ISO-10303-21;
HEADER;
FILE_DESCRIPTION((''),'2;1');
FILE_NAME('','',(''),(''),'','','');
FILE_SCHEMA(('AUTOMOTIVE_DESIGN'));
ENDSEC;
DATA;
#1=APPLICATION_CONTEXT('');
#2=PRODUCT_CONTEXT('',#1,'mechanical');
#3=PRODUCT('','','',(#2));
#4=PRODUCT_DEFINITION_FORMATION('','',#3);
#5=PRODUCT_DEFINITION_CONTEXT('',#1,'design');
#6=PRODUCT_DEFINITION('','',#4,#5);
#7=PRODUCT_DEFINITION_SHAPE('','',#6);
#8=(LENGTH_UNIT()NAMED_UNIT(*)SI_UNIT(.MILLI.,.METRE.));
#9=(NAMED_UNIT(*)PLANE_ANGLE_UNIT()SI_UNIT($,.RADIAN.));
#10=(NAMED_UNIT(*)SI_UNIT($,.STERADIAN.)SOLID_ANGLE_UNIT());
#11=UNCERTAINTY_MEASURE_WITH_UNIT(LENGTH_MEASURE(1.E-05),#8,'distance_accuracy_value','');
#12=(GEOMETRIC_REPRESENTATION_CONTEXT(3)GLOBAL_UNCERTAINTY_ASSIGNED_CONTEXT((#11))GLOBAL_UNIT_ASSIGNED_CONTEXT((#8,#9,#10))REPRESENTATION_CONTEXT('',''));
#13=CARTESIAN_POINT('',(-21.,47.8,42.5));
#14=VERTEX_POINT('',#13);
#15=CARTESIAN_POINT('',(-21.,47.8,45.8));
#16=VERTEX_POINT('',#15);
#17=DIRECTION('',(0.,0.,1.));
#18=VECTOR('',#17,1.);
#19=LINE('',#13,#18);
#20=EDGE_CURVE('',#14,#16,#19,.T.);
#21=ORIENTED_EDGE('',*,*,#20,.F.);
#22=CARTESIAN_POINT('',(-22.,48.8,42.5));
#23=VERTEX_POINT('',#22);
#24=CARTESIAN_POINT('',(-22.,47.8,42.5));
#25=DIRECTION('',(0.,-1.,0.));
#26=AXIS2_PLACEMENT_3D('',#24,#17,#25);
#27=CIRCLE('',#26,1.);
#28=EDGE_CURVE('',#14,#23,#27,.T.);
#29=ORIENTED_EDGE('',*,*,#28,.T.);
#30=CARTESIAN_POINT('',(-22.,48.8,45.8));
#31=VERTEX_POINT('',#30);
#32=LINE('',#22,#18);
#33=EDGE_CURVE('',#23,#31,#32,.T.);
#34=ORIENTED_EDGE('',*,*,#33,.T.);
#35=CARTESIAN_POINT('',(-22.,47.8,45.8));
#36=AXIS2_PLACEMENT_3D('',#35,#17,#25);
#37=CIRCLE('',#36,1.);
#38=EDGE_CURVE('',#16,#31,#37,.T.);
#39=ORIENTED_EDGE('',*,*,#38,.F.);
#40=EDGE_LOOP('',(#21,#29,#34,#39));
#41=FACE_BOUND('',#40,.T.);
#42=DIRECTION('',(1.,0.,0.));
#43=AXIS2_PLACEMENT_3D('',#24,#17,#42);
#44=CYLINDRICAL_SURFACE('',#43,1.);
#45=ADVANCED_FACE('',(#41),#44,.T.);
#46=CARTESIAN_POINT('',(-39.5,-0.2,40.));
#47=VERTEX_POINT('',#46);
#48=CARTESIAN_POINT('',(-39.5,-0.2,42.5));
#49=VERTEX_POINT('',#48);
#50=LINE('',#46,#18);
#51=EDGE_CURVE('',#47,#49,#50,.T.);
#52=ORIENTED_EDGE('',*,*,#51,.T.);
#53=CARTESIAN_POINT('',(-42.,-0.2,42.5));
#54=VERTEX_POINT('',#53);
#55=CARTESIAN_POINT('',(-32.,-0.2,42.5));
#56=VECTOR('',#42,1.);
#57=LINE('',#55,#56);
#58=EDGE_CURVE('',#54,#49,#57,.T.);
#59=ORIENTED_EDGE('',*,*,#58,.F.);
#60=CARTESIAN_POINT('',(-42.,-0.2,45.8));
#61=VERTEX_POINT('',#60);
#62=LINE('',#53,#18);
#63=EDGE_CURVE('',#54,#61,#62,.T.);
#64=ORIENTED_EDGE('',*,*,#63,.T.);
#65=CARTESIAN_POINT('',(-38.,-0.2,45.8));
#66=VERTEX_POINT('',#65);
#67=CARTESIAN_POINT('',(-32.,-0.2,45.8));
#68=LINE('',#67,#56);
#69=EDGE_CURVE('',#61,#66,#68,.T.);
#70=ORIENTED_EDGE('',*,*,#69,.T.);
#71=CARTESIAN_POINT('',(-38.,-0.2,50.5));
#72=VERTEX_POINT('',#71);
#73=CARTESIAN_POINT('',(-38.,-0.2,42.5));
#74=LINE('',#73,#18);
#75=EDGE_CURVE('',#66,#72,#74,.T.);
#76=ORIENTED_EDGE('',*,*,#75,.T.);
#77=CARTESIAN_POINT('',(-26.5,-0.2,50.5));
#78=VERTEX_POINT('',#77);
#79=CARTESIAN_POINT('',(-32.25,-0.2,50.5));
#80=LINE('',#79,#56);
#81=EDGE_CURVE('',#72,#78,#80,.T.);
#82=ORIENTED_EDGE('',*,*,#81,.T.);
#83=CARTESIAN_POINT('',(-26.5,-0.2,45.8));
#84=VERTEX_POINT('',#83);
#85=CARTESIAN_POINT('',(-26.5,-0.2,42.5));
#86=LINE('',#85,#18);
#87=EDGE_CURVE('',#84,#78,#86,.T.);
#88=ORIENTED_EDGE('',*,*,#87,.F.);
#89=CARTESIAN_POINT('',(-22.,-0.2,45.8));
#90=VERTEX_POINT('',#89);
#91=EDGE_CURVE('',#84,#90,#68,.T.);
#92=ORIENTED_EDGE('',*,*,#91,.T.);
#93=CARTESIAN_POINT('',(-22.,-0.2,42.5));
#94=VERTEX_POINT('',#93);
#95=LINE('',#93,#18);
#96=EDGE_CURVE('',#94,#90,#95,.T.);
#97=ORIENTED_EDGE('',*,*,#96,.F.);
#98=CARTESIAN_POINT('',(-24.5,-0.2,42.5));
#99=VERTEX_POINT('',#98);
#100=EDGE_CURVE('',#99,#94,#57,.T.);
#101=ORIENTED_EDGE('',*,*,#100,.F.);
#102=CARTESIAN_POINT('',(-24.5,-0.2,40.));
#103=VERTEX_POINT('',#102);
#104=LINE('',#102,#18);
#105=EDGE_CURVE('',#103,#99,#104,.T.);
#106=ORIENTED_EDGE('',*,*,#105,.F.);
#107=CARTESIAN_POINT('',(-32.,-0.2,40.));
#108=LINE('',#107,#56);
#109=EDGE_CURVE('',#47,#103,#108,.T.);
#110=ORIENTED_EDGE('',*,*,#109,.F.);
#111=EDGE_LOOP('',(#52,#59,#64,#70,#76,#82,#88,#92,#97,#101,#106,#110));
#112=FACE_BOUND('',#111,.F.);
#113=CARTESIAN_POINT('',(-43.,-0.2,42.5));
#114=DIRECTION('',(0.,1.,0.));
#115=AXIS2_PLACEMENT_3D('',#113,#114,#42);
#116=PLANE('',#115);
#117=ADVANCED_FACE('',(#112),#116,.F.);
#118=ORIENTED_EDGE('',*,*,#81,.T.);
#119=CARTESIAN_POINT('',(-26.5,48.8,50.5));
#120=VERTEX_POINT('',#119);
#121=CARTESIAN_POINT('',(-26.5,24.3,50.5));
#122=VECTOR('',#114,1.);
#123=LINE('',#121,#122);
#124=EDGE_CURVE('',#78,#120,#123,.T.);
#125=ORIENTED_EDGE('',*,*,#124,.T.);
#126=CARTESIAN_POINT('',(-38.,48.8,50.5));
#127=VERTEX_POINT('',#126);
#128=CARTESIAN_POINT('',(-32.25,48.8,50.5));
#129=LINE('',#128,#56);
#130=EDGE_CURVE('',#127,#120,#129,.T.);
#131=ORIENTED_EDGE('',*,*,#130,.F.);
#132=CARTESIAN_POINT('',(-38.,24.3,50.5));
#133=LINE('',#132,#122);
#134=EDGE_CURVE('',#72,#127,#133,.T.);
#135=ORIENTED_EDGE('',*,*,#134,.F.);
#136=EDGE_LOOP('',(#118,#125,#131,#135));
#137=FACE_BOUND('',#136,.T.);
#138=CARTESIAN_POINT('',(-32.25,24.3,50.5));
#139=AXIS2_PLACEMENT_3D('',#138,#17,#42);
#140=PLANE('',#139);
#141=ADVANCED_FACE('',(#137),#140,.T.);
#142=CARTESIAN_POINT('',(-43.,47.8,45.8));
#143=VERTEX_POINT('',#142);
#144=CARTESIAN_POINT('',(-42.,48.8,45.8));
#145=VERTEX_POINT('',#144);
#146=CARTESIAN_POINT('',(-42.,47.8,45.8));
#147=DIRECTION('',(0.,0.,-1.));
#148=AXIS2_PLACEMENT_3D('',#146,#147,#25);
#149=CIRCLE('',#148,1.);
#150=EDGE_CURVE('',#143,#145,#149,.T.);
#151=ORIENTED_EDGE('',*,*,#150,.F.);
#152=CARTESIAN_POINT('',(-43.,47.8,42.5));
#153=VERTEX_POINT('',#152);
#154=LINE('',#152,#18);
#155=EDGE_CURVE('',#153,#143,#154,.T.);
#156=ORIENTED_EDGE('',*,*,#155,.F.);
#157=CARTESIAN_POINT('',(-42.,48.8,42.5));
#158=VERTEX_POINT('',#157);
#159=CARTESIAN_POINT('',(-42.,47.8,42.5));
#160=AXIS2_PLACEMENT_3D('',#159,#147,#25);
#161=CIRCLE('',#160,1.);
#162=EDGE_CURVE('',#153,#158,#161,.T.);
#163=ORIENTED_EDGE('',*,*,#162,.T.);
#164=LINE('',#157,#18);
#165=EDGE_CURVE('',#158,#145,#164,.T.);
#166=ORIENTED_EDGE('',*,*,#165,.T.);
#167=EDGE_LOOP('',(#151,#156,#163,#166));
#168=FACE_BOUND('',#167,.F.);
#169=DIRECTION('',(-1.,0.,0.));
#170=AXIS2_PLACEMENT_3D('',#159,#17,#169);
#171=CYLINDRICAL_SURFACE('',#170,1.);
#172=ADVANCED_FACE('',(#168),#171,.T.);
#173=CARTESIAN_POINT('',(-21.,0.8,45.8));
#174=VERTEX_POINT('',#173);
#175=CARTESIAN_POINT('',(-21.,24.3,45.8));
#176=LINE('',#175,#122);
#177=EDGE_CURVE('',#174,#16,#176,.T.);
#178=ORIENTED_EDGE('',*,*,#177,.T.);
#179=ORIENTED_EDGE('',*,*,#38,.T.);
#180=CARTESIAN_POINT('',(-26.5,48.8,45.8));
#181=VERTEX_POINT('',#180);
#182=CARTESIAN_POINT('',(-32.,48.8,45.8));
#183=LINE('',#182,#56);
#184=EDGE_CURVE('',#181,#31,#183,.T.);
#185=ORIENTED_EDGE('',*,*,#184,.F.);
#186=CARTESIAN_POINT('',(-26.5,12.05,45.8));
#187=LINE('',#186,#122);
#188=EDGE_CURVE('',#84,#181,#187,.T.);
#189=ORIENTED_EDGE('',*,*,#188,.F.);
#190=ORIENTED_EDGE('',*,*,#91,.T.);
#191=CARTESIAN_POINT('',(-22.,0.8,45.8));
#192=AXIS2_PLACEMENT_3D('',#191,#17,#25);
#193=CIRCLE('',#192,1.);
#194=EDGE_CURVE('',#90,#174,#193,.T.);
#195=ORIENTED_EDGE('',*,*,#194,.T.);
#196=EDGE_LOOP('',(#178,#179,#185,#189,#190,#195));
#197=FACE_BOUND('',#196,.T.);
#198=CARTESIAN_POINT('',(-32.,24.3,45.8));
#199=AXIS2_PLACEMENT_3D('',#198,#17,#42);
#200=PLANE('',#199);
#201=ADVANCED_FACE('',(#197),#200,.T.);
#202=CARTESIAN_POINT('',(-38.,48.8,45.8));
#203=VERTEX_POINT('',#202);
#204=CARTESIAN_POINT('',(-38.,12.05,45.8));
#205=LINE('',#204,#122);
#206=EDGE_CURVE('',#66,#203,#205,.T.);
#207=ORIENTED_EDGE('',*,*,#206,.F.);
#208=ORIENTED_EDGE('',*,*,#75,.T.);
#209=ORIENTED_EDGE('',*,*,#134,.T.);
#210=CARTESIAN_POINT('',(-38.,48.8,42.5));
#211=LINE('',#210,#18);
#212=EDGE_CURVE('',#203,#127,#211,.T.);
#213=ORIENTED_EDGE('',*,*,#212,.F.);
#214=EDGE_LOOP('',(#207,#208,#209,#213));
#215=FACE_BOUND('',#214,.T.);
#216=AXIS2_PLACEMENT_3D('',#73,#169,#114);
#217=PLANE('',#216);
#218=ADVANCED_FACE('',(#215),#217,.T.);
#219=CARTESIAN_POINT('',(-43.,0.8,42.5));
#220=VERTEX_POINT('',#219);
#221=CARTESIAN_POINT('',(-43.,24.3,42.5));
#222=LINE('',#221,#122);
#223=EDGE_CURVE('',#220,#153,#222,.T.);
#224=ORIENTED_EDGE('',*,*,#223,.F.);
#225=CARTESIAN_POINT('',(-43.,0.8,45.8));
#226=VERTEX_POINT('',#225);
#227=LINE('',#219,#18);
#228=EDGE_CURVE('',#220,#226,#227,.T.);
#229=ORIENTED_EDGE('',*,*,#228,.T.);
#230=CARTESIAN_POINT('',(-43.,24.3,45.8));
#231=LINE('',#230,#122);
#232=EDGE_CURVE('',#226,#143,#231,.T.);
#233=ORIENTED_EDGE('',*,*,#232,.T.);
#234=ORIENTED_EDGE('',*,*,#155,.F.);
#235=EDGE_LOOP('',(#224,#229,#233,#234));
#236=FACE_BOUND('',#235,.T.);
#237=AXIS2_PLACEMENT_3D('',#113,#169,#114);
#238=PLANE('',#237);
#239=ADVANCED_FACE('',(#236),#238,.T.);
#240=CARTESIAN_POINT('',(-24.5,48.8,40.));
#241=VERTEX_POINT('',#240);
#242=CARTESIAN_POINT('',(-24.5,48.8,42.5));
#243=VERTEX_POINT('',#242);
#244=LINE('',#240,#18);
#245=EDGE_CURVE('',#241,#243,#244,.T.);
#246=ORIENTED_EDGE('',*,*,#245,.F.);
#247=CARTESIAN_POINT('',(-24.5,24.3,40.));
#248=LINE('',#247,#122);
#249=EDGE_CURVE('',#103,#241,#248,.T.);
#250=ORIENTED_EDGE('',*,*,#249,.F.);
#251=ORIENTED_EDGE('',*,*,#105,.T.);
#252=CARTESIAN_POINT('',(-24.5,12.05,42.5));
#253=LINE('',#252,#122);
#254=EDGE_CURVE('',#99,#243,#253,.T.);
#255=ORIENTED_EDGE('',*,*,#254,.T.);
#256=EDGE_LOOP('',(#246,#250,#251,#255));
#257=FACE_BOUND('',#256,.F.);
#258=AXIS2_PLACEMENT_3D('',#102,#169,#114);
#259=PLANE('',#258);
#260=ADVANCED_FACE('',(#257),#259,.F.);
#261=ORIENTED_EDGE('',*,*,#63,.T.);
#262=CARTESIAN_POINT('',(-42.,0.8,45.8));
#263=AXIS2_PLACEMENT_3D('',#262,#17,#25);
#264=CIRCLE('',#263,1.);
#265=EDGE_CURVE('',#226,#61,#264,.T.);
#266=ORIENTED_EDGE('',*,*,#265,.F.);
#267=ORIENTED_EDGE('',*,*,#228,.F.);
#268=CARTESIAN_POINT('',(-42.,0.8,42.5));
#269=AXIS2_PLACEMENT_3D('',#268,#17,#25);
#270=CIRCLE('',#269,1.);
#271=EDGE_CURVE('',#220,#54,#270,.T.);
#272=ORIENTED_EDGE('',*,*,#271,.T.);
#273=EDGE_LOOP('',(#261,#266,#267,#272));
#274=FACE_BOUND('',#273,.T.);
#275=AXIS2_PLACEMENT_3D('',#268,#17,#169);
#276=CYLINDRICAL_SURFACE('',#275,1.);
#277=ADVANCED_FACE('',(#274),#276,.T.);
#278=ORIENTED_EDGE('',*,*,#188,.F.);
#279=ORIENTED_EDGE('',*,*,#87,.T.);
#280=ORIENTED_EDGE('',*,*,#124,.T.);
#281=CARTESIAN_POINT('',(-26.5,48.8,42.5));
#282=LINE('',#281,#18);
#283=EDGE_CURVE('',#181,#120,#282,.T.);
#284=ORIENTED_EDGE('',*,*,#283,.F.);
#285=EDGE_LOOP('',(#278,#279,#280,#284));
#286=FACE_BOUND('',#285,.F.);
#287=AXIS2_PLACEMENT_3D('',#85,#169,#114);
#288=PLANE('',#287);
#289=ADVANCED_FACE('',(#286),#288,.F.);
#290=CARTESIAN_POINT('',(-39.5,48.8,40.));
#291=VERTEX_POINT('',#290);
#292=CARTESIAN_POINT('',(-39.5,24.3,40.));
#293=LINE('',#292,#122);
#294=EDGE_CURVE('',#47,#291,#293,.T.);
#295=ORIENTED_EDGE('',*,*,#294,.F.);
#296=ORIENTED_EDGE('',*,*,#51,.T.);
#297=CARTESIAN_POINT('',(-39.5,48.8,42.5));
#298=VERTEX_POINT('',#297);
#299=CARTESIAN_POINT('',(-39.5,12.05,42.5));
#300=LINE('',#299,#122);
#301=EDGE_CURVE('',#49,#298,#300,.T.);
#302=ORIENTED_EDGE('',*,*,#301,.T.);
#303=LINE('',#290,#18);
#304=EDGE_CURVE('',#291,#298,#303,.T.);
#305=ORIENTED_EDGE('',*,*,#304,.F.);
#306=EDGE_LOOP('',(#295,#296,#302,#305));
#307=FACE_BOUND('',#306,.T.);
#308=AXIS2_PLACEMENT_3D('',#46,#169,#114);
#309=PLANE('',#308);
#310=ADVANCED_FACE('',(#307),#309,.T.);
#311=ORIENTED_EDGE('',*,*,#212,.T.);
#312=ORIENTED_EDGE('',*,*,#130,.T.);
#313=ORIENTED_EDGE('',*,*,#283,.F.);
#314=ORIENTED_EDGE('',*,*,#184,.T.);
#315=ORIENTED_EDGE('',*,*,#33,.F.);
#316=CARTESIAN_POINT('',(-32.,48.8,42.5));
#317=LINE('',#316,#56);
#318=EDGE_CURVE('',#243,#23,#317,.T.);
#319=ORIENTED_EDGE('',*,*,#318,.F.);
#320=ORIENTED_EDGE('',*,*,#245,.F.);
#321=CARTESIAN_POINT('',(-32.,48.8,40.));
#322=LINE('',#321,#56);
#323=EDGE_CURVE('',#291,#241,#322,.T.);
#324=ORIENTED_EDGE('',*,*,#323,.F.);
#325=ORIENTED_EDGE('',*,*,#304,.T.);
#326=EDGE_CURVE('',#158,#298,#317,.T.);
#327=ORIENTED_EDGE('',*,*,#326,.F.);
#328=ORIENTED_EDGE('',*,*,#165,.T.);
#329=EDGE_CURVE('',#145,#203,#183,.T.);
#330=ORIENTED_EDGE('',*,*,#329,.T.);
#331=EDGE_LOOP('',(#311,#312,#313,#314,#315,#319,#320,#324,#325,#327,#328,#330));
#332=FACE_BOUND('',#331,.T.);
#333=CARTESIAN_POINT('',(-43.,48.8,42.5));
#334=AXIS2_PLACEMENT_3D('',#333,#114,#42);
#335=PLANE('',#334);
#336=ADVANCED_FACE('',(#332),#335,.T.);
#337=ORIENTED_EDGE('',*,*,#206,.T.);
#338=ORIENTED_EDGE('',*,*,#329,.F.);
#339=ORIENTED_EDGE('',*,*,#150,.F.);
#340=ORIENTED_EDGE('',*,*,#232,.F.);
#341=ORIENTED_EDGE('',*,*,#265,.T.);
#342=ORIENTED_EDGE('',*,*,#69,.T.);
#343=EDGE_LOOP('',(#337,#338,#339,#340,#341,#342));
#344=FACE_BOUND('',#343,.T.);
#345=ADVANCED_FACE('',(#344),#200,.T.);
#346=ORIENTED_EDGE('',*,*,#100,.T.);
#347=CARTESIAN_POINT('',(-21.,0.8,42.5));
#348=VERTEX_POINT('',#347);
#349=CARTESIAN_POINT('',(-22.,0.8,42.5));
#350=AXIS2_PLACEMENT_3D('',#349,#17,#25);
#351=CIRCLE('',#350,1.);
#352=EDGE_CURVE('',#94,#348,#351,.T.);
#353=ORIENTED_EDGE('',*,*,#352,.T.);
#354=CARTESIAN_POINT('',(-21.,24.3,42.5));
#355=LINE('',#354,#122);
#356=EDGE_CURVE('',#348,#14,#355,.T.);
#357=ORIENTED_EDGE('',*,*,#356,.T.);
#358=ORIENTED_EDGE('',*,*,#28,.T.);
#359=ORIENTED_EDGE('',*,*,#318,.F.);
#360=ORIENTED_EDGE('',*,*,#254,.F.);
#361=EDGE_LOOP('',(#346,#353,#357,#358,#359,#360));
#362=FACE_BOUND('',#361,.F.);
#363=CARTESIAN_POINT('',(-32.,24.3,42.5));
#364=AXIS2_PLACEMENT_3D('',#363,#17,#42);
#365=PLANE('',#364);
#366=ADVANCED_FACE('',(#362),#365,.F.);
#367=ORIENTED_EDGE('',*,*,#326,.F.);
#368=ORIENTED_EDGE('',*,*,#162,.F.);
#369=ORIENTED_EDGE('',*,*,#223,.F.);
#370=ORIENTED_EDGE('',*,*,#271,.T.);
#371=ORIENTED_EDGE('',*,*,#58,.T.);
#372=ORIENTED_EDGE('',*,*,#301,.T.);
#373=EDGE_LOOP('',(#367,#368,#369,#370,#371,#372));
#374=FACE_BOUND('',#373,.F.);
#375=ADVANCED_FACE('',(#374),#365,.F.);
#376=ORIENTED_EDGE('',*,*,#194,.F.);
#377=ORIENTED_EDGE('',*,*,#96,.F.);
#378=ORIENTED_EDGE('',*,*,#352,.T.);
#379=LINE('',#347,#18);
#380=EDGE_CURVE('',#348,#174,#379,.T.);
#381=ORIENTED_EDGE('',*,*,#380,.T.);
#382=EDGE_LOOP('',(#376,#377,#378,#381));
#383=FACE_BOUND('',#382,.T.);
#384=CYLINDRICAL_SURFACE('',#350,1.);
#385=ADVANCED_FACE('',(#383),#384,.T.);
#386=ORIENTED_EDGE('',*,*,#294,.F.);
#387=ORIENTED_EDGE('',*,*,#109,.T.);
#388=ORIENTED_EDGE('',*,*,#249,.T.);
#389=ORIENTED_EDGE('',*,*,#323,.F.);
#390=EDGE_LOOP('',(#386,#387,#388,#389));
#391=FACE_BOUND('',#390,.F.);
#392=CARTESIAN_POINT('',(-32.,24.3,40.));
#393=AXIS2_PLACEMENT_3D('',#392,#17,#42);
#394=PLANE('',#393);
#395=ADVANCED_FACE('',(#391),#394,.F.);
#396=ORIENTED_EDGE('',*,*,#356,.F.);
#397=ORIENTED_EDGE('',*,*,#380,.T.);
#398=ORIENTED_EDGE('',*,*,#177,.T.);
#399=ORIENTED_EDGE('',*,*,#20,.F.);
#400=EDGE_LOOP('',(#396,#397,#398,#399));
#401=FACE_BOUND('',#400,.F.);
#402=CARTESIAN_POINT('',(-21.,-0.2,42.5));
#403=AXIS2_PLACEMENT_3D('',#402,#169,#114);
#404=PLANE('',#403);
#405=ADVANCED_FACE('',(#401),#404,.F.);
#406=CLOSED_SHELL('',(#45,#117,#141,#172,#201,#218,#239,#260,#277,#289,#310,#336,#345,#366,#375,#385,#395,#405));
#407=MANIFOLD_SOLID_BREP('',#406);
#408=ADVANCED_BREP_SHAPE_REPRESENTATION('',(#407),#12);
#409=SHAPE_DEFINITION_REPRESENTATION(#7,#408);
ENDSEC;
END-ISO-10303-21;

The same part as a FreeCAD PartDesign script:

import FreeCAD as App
import Part
import Sketcher
from FreeCAD import Vector
Q = App.Units.Quantity


def edges_at(feature, points):
    """Names of the edges that pass closest to the given points."""
    edges = feature.Shape.Edges
    near = lambda p: min(range(len(edges)), key=lambda i: edges[i].distToShape(Part.Vertex(*p))[0])
    return sorted({f"Edge{near(p) + 1}" for p in points})

doc = App.newDocument("Part")
body = doc.addObject("PartDesign::Body", "Body")

# Sketch on XY plane
sketch1 = body.newObject("Sketcher::SketchObject", "Sketch")
sketch1.AttachmentSupport = (doc.getObject("XY_Plane"), [""])
sketch1.MapMode = "FlatFace"
sketch1.AttachmentOffset = App.Placement(Vector(0, 0, 84.5), App.Rotation())
sketch1.addGeometry([
    Part.LineSegment(Vector(-38, 49, 0), Vector(-38, 0, 0)),
    Part.LineSegment(Vector(-38, 0, 0), Vector(-26, 0, 0)),
    Part.LineSegment(Vector(-26, 0, 0), Vector(-26, 49, 0)),
    Part.LineSegment(Vector(-26, 49, 0), Vector(-38, 49, 0)),
], False)
sketch1.addConstraint([
    Sketcher.Constraint("Coincident", 0, 2, 1, 1),
    Sketcher.Constraint("Coincident", 1, 2, 2, 1),
    Sketcher.Constraint("Coincident", 2, 2, 3, 1),
    Sketcher.Constraint("Coincident", 3, 2, 0, 1),
    Sketcher.Constraint("Vertical", 0),
    Sketcher.Constraint("Horizontal", 1),
    Sketcher.Constraint("Vertical", 2),
    Sketcher.Constraint("Horizontal", 3),
    Sketcher.Constraint("DistanceY", 0, 2, 0, 1, Q("49 mm")),
    Sketcher.Constraint("DistanceX", 1, 1, 1, 2, Q("11.5 mm")),
    Sketcher.Constraint("DistanceX", 0, 2, -1, 1, Q("38 mm")),
    Sketcher.Constraint("DistanceY", 0, 2, -1, 1, Q("0.2 mm")),
])
pad1 = body.newObject("PartDesign::Pad", "Pad")
pad1.Profile = sketch1
pad1.Length = 8
body2 = doc.addObject("PartDesign::Body", "Body001")

# Sketch on XY plane
sketch2 = body2.newObject("Sketcher::SketchObject", "Sketch001")
sketch2.AttachmentSupport = (doc.getObject("XY_Plane001"), [""])
sketch2.MapMode = "FlatFace"
sketch2.AttachmentOffset = App.Placement(Vector(0, 0, 84.5), App.Rotation())
sketch2.addGeometry([
    Part.LineSegment(Vector(-43, 49, 0), Vector(-43, 0, 0)),
    Part.LineSegment(Vector(-43, 0, 0), Vector(-21, 0, 0)),
    Part.LineSegment(Vector(-21, 0, 0), Vector(-21, 49, 0)),
    Part.LineSegment(Vector(-21, 49, 0), Vector(-43, 49, 0)),
], False)
sketch2.addConstraint([
    Sketcher.Constraint("Coincident", 0, 2, 1, 1),
    Sketcher.Constraint("Coincident", 1, 2, 2, 1),
    Sketcher.Constraint("Coincident", 2, 2, 3, 1),
    Sketcher.Constraint("Coincident", 3, 2, 0, 1),
    Sketcher.Constraint("Vertical", 0),
    Sketcher.Constraint("Horizontal", 1),
    Sketcher.Constraint("Vertical", 2),
    Sketcher.Constraint("Horizontal", 3),
    Sketcher.Constraint("DistanceX", 1, 1, 1, 2, Q("22 mm")),
    Sketcher.Constraint("DistanceY", 0, 2, 0, 1, Q("49 mm")),
    Sketcher.Constraint("DistanceX", 0, 2, -1, 1, Q("43 mm")),
    Sketcher.Constraint("DistanceY", 0, 2, -1, 1, Q("0.2 mm")),
])
pad2 = body2.newObject("PartDesign::Pad", "Pad001")
pad2.Profile = sketch2
pad2.Length = 3.3
doc.recompute()

fillet = body2.newObject("PartDesign::Fillet", "Fillet")
fillet.Base = (pad2, edges_at(pad2, [
    (-43, -0.2, 86.15),
    (-43, 48.8, 86.15),
    (-21, -0.2, 86.15),
    (-21, 48.8, 86.15),
]))
fillet.Radius = 1
body3 = doc.addObject("PartDesign::Body", "Body002")

# Sketch on XY plane
sketch3 = body3.newObject("Sketcher::SketchObject", "Sketch002")
sketch3.AttachmentSupport = (doc.getObject("XY_Plane002"), [""])
sketch3.MapMode = "FlatFace"
sketch3.AttachmentOffset = App.Placement(Vector(0, 0, 82), App.Rotation())
sketch3.addGeometry([
    Part.LineSegment(Vector(-40, 49, 0), Vector(-40, 0, 0)),
    Part.LineSegment(Vector(-40, 0, 0), Vector(-24, 0, 0)),
    Part.LineSegment(Vector(-24, 0, 0), Vector(-24, 49, 0)),
    Part.LineSegment(Vector(-24, 49, 0), Vector(-40, 49, 0)),
], False)
sketch3.addConstraint([
    Sketcher.Constraint("Coincident", 0, 2, 1, 1),
    Sketcher.Constraint("Coincident", 1, 2, 2, 1),
    Sketcher.Constraint("Coincident", 2, 2, 3, 1),
    Sketcher.Constraint("Coincident", 3, 2, 0, 1),
    Sketcher.Constraint("Vertical", 0),
    Sketcher.Constraint("Horizontal", 1),
    Sketcher.Constraint("Vertical", 2),
    Sketcher.Constraint("Horizontal", 3),
    Sketcher.Constraint("DistanceX", 1, 1, 1, 2, Q("15 mm")),
    Sketcher.Constraint("DistanceY", 0, 2, 0, 1, Q("49 mm")),
    Sketcher.Constraint("DistanceX", 0, 2, -1, 1, Q("39.5 mm")),
    Sketcher.Constraint("DistanceY", 0, 2, -1, 1, Q("0.2 mm")),
])
pad3 = body3.newObject("PartDesign::Pad", "Pad002")
pad3.Profile = sketch3
pad3.Length = 3
doc.recompute()

boolean = body3.newObject("PartDesign::Boolean", "Boolean")
boolean.Type = "Fuse"
boolean.addObjects([body])
doc.recompute()

boolean2 = body3.newObject("PartDesign::Boolean", "Boolean001")
boolean2.Type = "Fuse"
boolean2.addObjects([body2])
body4 = doc.addObject("PartDesign::Body", "Body003")
doc.recompute()

body3.Placement = App.Placement(Vector(0, 0, -42), App.Rotation(Vector(0, 0, 1), 0))
boolean3 = body4.newObject("PartDesign::Boolean", "Boolean002")
boolean3.Type = "Fuse"
boolean3.addObjects([body3])

doc.recompute()
